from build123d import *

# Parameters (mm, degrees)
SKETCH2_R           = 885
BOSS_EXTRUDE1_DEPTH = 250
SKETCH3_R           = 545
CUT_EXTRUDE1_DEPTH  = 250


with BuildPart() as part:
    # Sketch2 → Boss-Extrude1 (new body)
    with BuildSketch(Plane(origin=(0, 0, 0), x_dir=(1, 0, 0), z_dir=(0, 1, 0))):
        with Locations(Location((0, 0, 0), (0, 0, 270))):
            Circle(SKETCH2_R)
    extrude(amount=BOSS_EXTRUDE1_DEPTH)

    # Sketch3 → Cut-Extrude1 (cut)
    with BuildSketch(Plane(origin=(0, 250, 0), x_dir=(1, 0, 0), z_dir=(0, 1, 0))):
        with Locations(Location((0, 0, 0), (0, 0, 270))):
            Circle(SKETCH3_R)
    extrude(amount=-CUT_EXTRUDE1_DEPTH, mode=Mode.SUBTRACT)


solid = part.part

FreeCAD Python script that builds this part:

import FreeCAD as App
import Part
import Sketcher
Q = App.Units.Quantity

doc = App.newDocument("Part")
params = doc.addObject("Spreadsheet::Sheet", "Params")
for row, (alias, value) in enumerate([
    ("sketch1_diameter", "1770 mm"),
    ("pad1_length", "250 mm"),
    ("sketch2_diameter", "1090 mm"),
    ("pocket1_length", "250 mm"),
], start=1):
    params.set(f"A{row}", alias)
    params.set(f"B{row}", "=" + value)
    params.setAlias(f"B{row}", alias)

body = doc.addObject("PartDesign::Body", "Body")

sketch1 = body.newObject("Sketcher::SketchObject", "Sketch")
sketch1.AttachmentSupport = (doc.getObject("XZ_Plane"), [""])
sketch1.MapMode = "FlatFace"
sketch1.addGeometry(Part.Circle(App.Vector(0, 0, 0), App.Vector(0, 0, 1), 885), False)
sketch1.addConstraint([
    Sketcher.Constraint("Coincident", 0, 3, -1, 1),
    Sketcher.Constraint("Diameter", 0, Q("1770 mm")),
])
sketch1.setExpression("Constraints[1]", "Params.sketch1_diameter")
pad1 = body.newObject("PartDesign::Pad", "Pad")
pad1.Profile = sketch1
pad1.setExpression("Length", "Params.pad1_length")
pad1.Reversed = True

sketch2 = body.newObject("Sketcher::SketchObject", "Sketch001")
sketch2.AttachmentSupport = (doc.getObject("XZ_Plane"), [""])
sketch2.MapMode = "FlatFace"
sketch2.AttachmentOffset = App.Placement(App.Vector(0, 0, -250), App.Rotation())
sketch2.addGeometry(Part.Circle(App.Vector(0, 0, 0), App.Vector(0, 0, 1), 545), False)
sketch2.addConstraint([
    Sketcher.Constraint("Coincident", 0, 3, -1, 1),
    Sketcher.Constraint("Diameter", 0, Q("1090 mm")),
])
sketch2.setExpression("Constraints[1]", "Params.sketch2_diameter")
pocket1 = body.newObject("PartDesign::Pocket", "Pocket")
pocket1.Profile = sketch2
pocket1.setExpression("Length", "Params.pocket1_length")
pocket1.Reversed = True

doc.recompute()
